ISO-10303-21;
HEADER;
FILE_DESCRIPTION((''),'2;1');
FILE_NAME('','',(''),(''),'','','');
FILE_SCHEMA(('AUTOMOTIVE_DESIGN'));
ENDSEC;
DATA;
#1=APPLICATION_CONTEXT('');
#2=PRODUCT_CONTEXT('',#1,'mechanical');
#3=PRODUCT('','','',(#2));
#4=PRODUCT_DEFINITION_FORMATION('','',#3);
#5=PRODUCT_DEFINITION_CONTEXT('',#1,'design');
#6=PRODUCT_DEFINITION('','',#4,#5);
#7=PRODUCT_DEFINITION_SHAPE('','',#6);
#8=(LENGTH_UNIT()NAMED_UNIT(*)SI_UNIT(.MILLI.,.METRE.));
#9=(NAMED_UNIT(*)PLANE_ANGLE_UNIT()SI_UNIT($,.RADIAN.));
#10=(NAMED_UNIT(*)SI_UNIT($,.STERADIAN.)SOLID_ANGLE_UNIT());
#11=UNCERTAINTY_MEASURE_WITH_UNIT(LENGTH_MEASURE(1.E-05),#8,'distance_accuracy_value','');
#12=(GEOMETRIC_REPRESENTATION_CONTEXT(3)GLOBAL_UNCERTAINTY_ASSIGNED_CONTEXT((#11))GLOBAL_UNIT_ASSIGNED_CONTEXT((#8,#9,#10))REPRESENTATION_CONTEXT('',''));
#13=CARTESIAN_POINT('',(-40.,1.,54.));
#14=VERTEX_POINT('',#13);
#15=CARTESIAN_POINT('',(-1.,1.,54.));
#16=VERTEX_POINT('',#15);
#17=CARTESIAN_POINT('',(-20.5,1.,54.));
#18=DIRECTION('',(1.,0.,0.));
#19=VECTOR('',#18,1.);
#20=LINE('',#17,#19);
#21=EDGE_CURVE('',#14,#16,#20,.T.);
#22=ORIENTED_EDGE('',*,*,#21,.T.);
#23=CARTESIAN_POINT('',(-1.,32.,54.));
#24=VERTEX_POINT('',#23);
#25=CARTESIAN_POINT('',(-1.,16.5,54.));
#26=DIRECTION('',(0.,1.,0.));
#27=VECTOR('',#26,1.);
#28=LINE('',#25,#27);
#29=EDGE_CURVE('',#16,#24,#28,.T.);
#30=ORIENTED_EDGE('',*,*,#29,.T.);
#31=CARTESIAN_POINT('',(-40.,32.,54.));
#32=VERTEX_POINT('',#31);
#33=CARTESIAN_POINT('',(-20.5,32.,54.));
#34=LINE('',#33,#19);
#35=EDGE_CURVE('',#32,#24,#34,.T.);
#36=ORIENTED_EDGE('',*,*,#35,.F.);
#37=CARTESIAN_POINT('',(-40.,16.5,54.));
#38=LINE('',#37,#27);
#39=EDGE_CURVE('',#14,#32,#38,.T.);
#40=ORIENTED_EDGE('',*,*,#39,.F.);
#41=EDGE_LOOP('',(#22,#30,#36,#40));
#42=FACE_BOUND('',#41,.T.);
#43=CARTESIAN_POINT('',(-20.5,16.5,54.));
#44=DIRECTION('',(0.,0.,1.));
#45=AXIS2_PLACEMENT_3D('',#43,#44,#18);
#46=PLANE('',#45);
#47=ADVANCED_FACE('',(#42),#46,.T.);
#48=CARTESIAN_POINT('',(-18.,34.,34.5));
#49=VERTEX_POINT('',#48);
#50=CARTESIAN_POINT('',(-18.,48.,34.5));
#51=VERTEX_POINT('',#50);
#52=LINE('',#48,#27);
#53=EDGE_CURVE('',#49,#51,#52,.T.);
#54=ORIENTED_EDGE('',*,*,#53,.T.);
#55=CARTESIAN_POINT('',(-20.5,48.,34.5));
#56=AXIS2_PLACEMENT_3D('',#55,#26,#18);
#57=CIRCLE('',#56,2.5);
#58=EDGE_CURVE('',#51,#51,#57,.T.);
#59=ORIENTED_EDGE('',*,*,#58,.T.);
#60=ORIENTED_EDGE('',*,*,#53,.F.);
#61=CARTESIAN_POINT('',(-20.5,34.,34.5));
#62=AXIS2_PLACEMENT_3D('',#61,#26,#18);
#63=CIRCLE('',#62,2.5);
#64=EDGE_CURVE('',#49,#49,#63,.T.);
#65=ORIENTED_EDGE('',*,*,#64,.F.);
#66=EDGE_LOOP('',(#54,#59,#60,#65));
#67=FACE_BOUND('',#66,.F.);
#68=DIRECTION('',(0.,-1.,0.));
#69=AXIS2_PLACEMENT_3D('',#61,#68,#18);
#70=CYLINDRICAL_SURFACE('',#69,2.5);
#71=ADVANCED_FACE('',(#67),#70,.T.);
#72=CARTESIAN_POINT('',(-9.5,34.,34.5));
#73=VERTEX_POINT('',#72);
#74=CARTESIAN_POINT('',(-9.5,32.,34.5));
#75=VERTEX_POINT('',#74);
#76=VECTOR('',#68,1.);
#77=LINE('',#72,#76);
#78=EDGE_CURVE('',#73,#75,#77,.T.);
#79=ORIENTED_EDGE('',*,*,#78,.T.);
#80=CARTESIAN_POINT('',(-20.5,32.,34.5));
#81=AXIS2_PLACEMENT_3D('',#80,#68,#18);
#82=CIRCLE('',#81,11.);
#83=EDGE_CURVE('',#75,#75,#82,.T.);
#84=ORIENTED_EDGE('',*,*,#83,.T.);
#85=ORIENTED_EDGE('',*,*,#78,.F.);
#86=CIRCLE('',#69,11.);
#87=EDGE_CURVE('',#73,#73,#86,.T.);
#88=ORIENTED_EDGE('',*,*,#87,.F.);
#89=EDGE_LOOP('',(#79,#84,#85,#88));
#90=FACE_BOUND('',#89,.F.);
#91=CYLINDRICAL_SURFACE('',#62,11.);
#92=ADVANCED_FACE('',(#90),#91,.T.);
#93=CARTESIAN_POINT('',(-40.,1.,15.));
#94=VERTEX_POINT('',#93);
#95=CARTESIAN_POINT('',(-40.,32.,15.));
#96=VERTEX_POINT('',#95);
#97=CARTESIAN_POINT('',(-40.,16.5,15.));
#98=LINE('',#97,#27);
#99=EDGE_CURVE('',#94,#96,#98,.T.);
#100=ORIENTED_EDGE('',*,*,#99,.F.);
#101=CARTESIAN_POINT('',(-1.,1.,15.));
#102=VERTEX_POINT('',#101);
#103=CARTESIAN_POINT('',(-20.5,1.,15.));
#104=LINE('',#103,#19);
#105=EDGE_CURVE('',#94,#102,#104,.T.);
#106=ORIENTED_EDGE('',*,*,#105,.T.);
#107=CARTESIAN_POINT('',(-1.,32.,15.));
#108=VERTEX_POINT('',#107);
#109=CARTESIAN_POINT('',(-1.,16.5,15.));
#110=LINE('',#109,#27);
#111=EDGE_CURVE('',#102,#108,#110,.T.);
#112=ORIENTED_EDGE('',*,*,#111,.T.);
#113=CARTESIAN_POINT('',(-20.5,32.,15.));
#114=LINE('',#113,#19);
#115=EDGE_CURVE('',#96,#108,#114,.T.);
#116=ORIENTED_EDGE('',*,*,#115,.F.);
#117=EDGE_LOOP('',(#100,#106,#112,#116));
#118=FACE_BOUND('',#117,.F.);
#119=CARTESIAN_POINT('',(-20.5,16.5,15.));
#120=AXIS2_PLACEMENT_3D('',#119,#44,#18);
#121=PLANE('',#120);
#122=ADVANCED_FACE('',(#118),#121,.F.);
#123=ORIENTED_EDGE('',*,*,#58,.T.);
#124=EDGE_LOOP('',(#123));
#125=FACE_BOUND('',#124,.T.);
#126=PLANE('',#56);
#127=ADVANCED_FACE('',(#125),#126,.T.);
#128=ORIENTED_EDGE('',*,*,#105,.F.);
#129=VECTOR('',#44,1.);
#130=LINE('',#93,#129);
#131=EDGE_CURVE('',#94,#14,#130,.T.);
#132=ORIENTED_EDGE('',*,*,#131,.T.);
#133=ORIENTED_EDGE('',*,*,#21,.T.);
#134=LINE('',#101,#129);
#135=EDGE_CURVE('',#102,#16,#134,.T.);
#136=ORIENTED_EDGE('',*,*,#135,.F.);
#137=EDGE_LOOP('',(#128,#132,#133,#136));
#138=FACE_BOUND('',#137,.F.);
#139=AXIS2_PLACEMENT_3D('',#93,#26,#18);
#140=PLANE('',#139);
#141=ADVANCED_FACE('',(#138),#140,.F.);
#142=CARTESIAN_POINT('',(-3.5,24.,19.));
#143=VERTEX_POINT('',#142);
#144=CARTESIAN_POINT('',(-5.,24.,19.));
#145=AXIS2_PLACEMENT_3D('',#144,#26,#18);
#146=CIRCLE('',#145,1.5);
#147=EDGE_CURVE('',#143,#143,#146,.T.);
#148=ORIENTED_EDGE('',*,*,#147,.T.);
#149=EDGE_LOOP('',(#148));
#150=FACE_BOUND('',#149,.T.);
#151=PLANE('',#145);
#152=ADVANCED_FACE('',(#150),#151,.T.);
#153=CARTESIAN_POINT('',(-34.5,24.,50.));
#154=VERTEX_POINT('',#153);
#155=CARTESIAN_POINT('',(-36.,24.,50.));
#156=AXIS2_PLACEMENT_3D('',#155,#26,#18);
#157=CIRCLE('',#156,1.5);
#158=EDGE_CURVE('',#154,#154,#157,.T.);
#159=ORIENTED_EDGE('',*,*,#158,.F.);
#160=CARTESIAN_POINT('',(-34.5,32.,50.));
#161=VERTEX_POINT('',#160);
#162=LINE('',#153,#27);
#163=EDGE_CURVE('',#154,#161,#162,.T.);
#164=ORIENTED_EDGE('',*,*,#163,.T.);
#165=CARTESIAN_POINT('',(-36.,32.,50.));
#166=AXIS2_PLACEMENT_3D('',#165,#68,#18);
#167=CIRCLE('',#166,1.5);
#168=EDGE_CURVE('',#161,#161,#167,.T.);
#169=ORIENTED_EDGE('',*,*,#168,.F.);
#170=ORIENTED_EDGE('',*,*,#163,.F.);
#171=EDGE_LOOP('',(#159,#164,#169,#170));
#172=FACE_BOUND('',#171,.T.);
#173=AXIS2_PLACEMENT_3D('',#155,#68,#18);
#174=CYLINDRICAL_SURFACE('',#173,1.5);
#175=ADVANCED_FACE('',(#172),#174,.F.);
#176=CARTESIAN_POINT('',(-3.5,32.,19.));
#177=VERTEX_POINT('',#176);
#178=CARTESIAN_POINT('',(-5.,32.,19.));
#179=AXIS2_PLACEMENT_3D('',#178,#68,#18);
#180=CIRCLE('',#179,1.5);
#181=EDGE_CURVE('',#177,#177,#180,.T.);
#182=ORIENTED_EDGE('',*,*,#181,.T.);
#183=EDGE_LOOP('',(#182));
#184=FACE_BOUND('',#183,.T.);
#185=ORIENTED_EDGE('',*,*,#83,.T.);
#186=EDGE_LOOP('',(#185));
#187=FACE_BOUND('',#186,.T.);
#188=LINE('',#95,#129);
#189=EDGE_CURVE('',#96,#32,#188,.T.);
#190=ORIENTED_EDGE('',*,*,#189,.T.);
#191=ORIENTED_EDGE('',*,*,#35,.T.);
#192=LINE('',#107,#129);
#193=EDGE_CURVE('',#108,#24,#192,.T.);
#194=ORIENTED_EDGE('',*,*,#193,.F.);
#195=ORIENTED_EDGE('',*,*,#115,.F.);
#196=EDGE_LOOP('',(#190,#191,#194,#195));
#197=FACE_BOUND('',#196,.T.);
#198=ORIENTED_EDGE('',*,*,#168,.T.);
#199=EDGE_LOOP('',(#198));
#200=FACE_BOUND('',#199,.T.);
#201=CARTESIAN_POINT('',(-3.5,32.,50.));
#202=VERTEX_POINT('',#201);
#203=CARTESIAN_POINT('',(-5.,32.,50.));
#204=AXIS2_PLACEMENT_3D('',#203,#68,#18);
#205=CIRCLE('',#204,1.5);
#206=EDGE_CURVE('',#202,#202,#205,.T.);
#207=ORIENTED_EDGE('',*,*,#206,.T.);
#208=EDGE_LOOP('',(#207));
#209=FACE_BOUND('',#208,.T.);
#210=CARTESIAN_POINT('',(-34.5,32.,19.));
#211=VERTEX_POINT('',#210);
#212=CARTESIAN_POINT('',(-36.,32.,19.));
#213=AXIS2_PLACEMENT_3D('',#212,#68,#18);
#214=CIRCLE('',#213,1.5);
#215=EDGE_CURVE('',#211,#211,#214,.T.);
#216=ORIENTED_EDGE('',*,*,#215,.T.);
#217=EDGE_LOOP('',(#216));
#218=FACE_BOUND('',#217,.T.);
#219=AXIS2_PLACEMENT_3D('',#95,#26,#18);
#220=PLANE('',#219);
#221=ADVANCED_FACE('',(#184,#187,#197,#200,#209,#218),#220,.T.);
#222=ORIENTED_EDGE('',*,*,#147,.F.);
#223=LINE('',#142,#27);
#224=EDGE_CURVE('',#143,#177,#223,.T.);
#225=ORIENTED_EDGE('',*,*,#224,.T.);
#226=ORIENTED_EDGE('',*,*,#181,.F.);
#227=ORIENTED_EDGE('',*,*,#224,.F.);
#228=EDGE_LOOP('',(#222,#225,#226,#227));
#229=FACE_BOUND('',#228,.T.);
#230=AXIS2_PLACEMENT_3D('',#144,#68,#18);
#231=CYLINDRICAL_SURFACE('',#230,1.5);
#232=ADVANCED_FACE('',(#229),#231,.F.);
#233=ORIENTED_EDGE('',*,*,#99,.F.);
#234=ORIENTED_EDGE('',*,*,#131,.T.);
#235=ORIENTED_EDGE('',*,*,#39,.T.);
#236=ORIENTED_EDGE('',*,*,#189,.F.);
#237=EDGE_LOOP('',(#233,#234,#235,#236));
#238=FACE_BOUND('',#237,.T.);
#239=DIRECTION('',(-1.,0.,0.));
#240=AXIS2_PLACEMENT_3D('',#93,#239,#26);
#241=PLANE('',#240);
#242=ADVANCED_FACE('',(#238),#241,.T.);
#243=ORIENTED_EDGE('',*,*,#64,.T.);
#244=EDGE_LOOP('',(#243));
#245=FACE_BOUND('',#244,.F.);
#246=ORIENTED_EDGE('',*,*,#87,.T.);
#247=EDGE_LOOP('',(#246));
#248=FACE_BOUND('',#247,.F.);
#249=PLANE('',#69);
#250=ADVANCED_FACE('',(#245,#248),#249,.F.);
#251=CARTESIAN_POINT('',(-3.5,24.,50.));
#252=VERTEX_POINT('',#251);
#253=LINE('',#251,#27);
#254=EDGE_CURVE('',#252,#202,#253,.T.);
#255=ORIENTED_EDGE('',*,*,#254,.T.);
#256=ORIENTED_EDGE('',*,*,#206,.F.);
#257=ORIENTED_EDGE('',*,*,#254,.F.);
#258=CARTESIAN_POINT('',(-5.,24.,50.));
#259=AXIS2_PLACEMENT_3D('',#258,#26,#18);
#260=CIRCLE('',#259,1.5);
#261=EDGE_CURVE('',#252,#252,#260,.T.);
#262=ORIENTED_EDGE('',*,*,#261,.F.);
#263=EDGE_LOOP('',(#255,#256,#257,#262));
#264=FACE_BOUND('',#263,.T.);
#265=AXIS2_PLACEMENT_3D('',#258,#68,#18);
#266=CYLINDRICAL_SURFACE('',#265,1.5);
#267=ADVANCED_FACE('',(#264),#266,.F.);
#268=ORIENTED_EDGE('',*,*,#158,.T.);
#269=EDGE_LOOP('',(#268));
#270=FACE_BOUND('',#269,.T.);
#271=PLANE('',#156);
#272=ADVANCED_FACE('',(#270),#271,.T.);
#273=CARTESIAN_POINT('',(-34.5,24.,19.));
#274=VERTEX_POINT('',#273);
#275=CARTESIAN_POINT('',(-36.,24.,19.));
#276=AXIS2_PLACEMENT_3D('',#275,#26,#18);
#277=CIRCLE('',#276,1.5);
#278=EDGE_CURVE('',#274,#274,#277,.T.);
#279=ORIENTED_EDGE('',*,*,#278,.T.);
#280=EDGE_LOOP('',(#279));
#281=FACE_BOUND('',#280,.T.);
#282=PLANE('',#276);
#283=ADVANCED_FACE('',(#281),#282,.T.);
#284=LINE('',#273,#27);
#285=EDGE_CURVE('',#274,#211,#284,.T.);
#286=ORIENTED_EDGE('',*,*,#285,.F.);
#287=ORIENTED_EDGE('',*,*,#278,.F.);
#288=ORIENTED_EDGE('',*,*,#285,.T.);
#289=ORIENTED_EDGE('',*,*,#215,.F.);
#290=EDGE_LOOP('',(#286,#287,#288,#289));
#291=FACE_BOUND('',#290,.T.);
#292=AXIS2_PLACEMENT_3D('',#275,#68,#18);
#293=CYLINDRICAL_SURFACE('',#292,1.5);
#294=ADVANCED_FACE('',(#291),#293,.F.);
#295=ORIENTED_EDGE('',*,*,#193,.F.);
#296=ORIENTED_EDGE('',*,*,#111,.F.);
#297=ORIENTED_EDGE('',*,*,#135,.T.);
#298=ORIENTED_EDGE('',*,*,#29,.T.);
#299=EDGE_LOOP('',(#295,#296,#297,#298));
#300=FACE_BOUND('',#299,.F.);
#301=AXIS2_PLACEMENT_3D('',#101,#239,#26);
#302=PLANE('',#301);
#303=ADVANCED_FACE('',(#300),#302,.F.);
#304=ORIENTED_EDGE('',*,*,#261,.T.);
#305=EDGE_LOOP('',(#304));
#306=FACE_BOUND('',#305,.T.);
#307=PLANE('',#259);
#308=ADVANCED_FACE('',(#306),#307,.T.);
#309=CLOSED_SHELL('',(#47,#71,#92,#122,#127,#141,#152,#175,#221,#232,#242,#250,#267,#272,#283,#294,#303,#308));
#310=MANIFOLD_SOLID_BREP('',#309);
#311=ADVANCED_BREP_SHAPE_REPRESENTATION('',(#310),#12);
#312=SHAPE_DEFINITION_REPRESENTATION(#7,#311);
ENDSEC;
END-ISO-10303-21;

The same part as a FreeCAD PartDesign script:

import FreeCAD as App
import Part
import Sketcher

V = App.Vector


def add_polygon(sketch, points):
    """Adds a closed chain of lines whose ends are joined by coincident constraints."""
    first, n = sketch.GeometryCount, len(points)
    for a, b in zip(points, points[1:] + points[:1]):
        sketch.addGeometry(Part.LineSegment(App.Vector(*a, 0), App.Vector(*b, 0)), False)
    for i in range(n):
        sketch.addConstraint(Sketcher.Constraint("Coincident", first + i, 2, first + (i + 1) % n, 1))

doc = App.newDocument("Part")
body = doc.addObject("PartDesign::Body", "Body")

sketch1 = body.newObject("Sketcher::SketchObject", "Sketch")
sketch1.AttachmentSupport = (doc.getObject("XZ_Plane"), [""])
sketch1.MapMode = "FlatFace"
sketch1.AttachmentOffset = App.Placement(V(0, 0, -33), App.Rotation())
sketch1.addGeometry(Part.Circle(V(19.5, 19.5, 0), V(0, 0, 1), 11), False)
sketch1.addConstraint(Sketcher.Constraint("Diameter", 0, 22.0))
sketch1.addConstraint(Sketcher.Constraint("DistanceX", -1, 1, 0, 3, 19.5))
sketch1.addConstraint(Sketcher.Constraint("DistanceY", -1, 1, 0, 3, 19.5))
pad1 = body.newObject("PartDesign::Pad", "Pad")
pad1.Profile = sketch1
pad1.Length = 2
body2 = doc.addObject("PartDesign::Body", "Body001")

sketch2 = body2.newObject("Sketcher::SketchObject", "Sketch001")
sketch2.AttachmentSupport = (doc.getObject("XZ_Plane001"), [""])
sketch2.MapMode = "FlatFace"
sketch2.AttachmentOffset = App.Placement(V(0, 0, -33), App.Rotation())
sketch2.addGeometry(Part.Circle(V(19.5, 19.5, 0), V(0, 0, 1), 2.5), False)
sketch2.addConstraint(Sketcher.Constraint("Diameter", 0, 5.0))
sketch2.addConstraint(Sketcher.Constraint("DistanceX", -1, 1, 0, 3, 19.5))
sketch2.addConstraint(Sketcher.Constraint("DistanceY", -1, 1, 0, 3, 19.5))
pad2 = body2.newObject("PartDesign::Pad", "Pad001")
pad2.Profile = sketch2
pad2.Length = 14
pad2.Reversed = True
body3 = doc.addObject("PartDesign::Body", "Body002")

sketch3 = body3.newObject("Sketcher::SketchObject", "Sketch002")
sketch3.AttachmentSupport = (doc.getObject("XZ_Plane002"), [""])
sketch3.MapMode = "FlatFace"
sketch3.AttachmentOffset = App.Placement(V(0, 0, -23), App.Rotation())
sketch3.addGeometry(Part.Circle(V(35, 35, 0), V(0, 0, 1), 1.5), False)
sketch3.addConstraint(Sketcher.Constraint("Diameter", 0, 3.0))
sketch3.addConstraint(Sketcher.Constraint("DistanceX", -1, 1, 0, 3, 35.0))
sketch3.addConstraint(Sketcher.Constraint("DistanceY", -1, 1, 0, 3, 35.0))
pad3 = body3.newObject("PartDesign::Pad", "Pad002")
pad3.Profile = sketch3
pad3.Length = 10
pad3.Reversed = True
body4 = doc.addObject("PartDesign::Body", "Body003")

sketch4 = body4.newObject("Sketcher::SketchObject", "Sketch003")
sketch4.AttachmentSupport = (doc.getObject("XZ_Plane003"), [""])
sketch4.MapMode = "FlatFace"
sketch4.AttachmentOffset = App.Placement(V(0, 0, -23), App.Rotation())
sketch4.addGeometry(Part.Circle(V(35, 4, 0), V(0, 0, 1), 1.5), False)
sketch4.addConstraint(Sketcher.Constraint("Diameter", 0, 3.0))
sketch4.addConstraint(Sketcher.Constraint("DistanceX", -1, 1, 0, 3, 35.0))
sketch4.addConstraint(Sketcher.Constraint("DistanceY", -1, 1, 0, 3, 4.0))
pad4 = body4.newObject("PartDesign::Pad", "Pad003")
pad4.Profile = sketch4
pad4.Length = 10
pad4.Reversed = True
body5 = doc.addObject("PartDesign::Body", "Body004")

sketch5 = body5.newObject("Sketcher::SketchObject", "Sketch004")
sketch5.AttachmentSupport = (doc.getObject("XZ_Plane004"), [""])
sketch5.MapMode = "FlatFace"
sketch5.AttachmentOffset = App.Placement(V(0, 0, -23), App.Rotation())
sketch5.addGeometry(Part.Circle(V(4, 4, 0), V(0, 0, 1), 1.5), False)
sketch5.addConstraint(Sketcher.Constraint("Diameter", 0, 3.0))
sketch5.addConstraint(Sketcher.Constraint("DistanceX", -1, 1, 0, 3, 4.0))
sketch5.addConstraint(Sketcher.Constraint("DistanceY", -1, 1, 0, 3, 4.0))
pad5 = body5.newObject("PartDesign::Pad", "Pad004")
pad5.Profile = sketch5
pad5.Length = 10
pad5.Reversed = True
body6 = doc.addObject("PartDesign::Body", "Body005")

sketch6 = body6.newObject("Sketcher::SketchObject", "Sketch005")
sketch6.AttachmentSupport = (doc.getObject("XZ_Plane005"), [""])
sketch6.MapMode = "FlatFace"
sketch6.AttachmentOffset = App.Placement(V(0, 0, -23), App.Rotation())
sketch6.addGeometry(Part.Circle(V(4, 35, 0), V(0, 0, 1), 1.5), False)
sketch6.addConstraint(Sketcher.Constraint("Diameter", 0, 3.0))
sketch6.addConstraint(Sketcher.Constraint("DistanceX", -1, 1, 0, 3, 4.0))
sketch6.addConstraint(Sketcher.Constraint("DistanceY", -1, 1, 0, 3, 35.0))
pad6 = body6.newObject("PartDesign::Pad", "Pad005")
pad6.Profile = sketch6
pad6.Length = 10
pad6.Reversed = True
body7 = doc.addObject("PartDesign::Body", "Body006")

sketch7 = body7.newObject("Sketcher::SketchObject", "Sketch006")
sketch7.AttachmentSupport = (doc.getObject("XY_Plane006"), [""])
sketch7.MapMode = "FlatFace"
add_polygon(sketch7, [(0, 31), (0, 0), (39, 0), (39, 31)])
sketch7.addConstraint(Sketcher.Constraint("Vertical", 0))
sketch7.addConstraint(Sketcher.Constraint("Horizontal", 1))
sketch7.addConstraint(Sketcher.Constraint("Vertical", 2))
sketch7.addConstraint(Sketcher.Constraint("Horizontal", 3))
sketch7.addConstraint(Sketcher.Constraint("Coincident", 0, 2, -1, 1))
sketch7.addConstraint(Sketcher.Constraint("DistanceX", 1, 1, 1, 2, 39.0))
sketch7.addConstraint(Sketcher.Constraint("DistanceY", 0, 2, 0, 1, 31.0))
pad7 = body7.newObject("PartDesign::Pad", "Pad006")
pad7.Profile = sketch7
pad7.Length = 39
doc.recompute()

boolean = body7.newObject("PartDesign::Boolean", "Boolean")
boolean.Type = "Cut"
boolean.addObjects([body6])
doc.recompute()

boolean2 = body7.newObject("PartDesign::Boolean", "Boolean001")
boolean2.Type = "Cut"
boolean2.addObjects([body5])
doc.recompute()

boolean3 = body7.newObject("PartDesign::Boolean", "Boolean002")
boolean3.Type = "Cut"
boolean3.addObjects([body4])
doc.recompute()

boolean4 = body7.newObject("PartDesign::Boolean", "Boolean003")
boolean4.Type = "Cut"
boolean4.addObjects([body3])
doc.recompute()

boolean5 = body7.newObject("PartDesign::Boolean", "Boolean004")
boolean5.Type = "Fuse"
boolean5.addObjects([body])
doc.recompute()

boolean6 = body7.newObject("PartDesign::Boolean", "Boolean005")
boolean6.Type = "Fuse"
boolean6.addObjects([body2])
body8 = doc.addObject("PartDesign::Body", "Body007")
doc.recompute()

body7.Placement = App.Placement(V(-40, 1, 15), App.Rotation(V(0, 0, 1), 0))
boolean7 = body8.newObject("PartDesign::Boolean", "Boolean006")
boolean7.Type = "Fuse"
boolean7.addObjects([body7])

doc.recompute()
